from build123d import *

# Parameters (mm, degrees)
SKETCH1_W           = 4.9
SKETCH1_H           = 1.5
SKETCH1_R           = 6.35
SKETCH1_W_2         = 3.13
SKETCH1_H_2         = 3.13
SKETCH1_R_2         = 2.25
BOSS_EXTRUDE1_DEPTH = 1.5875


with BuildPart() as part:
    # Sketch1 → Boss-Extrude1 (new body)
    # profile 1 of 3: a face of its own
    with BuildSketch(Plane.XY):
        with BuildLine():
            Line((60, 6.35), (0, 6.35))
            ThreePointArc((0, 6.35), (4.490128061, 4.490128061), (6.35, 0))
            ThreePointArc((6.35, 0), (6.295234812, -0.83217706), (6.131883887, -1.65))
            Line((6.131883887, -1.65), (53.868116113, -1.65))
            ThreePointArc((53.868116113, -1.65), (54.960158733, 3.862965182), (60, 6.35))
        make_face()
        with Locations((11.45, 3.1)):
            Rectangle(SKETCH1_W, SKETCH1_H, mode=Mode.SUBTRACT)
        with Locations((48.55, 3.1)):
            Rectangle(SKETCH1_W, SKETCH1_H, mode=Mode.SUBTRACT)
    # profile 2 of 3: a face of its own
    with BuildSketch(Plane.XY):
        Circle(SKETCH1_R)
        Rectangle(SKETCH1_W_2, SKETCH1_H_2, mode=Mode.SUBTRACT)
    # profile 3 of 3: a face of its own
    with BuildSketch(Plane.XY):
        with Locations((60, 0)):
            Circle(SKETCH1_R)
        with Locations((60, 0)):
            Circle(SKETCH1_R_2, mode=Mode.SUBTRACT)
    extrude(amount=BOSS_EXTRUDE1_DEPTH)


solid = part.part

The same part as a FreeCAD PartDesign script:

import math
import FreeCAD as App
import Part
import Sketcher
Q = App.Units.Quantity


def add_polygon(sketch, points):
    """Adds a closed chain of lines whose ends are joined by coincident constraints."""
    first, n = sketch.GeometryCount, len(points)
    for a, b in zip(points, points[1:] + points[:1]):
        sketch.addGeometry(Part.LineSegment(App.Vector(*a, 0), App.Vector(*b, 0)), False)
    for i in range(n):
        sketch.addConstraint(Sketcher.Constraint("Coincident", first + i, 2, first + (i + 1) % n, 1))

doc = App.newDocument("Part")
body = doc.addObject("PartDesign::Body", "Body")

# Sketch on XY plane
sketch1 = body.newObject("Sketcher::SketchObject", "Sketch")
sketch1.AttachmentSupport = (doc.getObject("XY_Plane"), [""])
sketch1.MapMode = "FlatFace"
sketch1.addGeometry(Part.LineSegment(App.Vector(60, 6.3, 0), App.Vector(0, 6.3, 0)), False)  # 0
sketch1.addGeometry(Part.ArcOfCircle(Part.Circle(App.Vector(0, 0, 0), App.Vector(0, 0, 1), 6.3), math.radians(90), math.radians(345)), False)  # 1
sketch1.addGeometry(Part.LineSegment(App.Vector(6.1, -1.6, 0), App.Vector(53.9, -1.6, 0)), False)  # 2
sketch1.addGeometry(Part.ArcOfCircle(Part.Circle(App.Vector(60, 0, 0), App.Vector(0, 0, 1), 6.3), math.radians(-165), math.radians(90)), False)  # 3
add_polygon(sketch1, [(13.9, 2.4), (9, 2.4), (9, 3.9), (13.9, 3.9)])  # lines 4-7
add_polygon(sketch1, [(51, 2.4), (46.1, 2.4), (46.1, 3.9), (51, 3.9)])  # lines 8-11
sketch1.addGeometry(Part.Circle(App.Vector(60, 0, 0), App.Vector(0, 0, 1), 2.2), False)  # 12
add_polygon(sketch1, [(-1.6, -1.6), (-1.6, 1.6), (1.6, 1.6), (1.6, -1.6)])  # lines 13-16
sketch1.addConstraint(Sketcher.Constraint("Tangent", 0, 2, 1, 1))
sketch1.addConstraint(Sketcher.Constraint("Coincident", 1, 2, 2, 1))
sketch1.addConstraint(Sketcher.Constraint("Coincident", 2, 2, 3, 1))
sketch1.addConstraint(Sketcher.Constraint("Tangent", 3, 2, 0, 1))
sketch1.addConstraint(Sketcher.Constraint("Horizontal", 0))
sketch1.addConstraint(Sketcher.Constraint("Horizontal", 2))
sketch1.addConstraint(Sketcher.Constraint("Horizontal", 4))
sketch1.addConstraint(Sketcher.Constraint("Vertical", 5))
sketch1.addConstraint(Sketcher.Constraint("Horizontal", 6))
sketch1.addConstraint(Sketcher.Constraint("Vertical", 7))
sketch1.addConstraint(Sketcher.Constraint("Horizontal", 8))
sketch1.addConstraint(Sketcher.Constraint("Vertical", 9))
sketch1.addConstraint(Sketcher.Constraint("Horizontal", 10))
sketch1.addConstraint(Sketcher.Constraint("Vertical", 11))
sketch1.addConstraint(Sketcher.Constraint("Vertical", 13))
sketch1.addConstraint(Sketcher.Constraint("Horizontal", 14))
sketch1.addConstraint(Sketcher.Constraint("Vertical", 15))
sketch1.addConstraint(Sketcher.Constraint("Horizontal", 16))
sketch1.addConstraint(Sketcher.Constraint("Coincident", 1, 3, -1, 1))
sketch1.addConstraint(Sketcher.Constraint("Coincident", 12, 3, 3, 3))
sketch1.addConstraint(Sketcher.Constraint("Equal", 1, 3))
sketch1.addConstraint(Sketcher.Constraint("Symmetric", 13, 2, 15, 2, -1, 1))
sketch1.addConstraint(Sketcher.Constraint("Horizontal", 7, 2, 8, 2))
sketch1.addConstraint(Sketcher.Constraint("Horizontal", 6, 2, 9, 2))
sketch1.addConstraint(Sketcher.Constraint("Equal", 6, 8))
sketch1.addConstraint(Sketcher.Constraint("Equal", 16, 13))
sketch1.addConstraint(Sketcher.Constraint("Diameter", 12, Q("4.5 mm")))
sketch1.addConstraint(Sketcher.Constraint("DistanceX", 0, 2, 0, 1, Q("60 mm")))
sketch1.addConstraint(Sketcher.Constraint("Radius", 1, Q("6.35 mm")))
sketch1.addConstraint(Sketcher.Constraint("DistanceX", 4, 2, 4, 1, Q("4.9 mm")))
sketch1.addConstraint(Sketcher.Constraint("DistanceY", 5, 1, 5, 2, Q("1.5 mm")))
sketch1.addConstraint(Sketcher.Constraint("DistanceX", -1, 1, 4, 2, Q("9 mm")))
sketch1.addConstraint(Sketcher.Constraint("DistanceX", -1, 1, 10, 2, Q("51 mm")))
sketch1.addConstraint(Sketcher.Constraint("DistanceY", 1, 2, 0, 2, Q("8 mm")))
sketch1.addConstraint(Sketcher.Constraint("DistanceY", 1, 2, 4, 2, Q("4 mm")))
sketch1.addConstraint(Sketcher.Constraint("DistanceX", 14, 1, 14, 2, Q("3.13 mm")))
pad1 = body.newObject("PartDesign::Pad", "Pad")
pad1.Profile = sketch1
pad1.Length = 1.5875

doc.recompute()
